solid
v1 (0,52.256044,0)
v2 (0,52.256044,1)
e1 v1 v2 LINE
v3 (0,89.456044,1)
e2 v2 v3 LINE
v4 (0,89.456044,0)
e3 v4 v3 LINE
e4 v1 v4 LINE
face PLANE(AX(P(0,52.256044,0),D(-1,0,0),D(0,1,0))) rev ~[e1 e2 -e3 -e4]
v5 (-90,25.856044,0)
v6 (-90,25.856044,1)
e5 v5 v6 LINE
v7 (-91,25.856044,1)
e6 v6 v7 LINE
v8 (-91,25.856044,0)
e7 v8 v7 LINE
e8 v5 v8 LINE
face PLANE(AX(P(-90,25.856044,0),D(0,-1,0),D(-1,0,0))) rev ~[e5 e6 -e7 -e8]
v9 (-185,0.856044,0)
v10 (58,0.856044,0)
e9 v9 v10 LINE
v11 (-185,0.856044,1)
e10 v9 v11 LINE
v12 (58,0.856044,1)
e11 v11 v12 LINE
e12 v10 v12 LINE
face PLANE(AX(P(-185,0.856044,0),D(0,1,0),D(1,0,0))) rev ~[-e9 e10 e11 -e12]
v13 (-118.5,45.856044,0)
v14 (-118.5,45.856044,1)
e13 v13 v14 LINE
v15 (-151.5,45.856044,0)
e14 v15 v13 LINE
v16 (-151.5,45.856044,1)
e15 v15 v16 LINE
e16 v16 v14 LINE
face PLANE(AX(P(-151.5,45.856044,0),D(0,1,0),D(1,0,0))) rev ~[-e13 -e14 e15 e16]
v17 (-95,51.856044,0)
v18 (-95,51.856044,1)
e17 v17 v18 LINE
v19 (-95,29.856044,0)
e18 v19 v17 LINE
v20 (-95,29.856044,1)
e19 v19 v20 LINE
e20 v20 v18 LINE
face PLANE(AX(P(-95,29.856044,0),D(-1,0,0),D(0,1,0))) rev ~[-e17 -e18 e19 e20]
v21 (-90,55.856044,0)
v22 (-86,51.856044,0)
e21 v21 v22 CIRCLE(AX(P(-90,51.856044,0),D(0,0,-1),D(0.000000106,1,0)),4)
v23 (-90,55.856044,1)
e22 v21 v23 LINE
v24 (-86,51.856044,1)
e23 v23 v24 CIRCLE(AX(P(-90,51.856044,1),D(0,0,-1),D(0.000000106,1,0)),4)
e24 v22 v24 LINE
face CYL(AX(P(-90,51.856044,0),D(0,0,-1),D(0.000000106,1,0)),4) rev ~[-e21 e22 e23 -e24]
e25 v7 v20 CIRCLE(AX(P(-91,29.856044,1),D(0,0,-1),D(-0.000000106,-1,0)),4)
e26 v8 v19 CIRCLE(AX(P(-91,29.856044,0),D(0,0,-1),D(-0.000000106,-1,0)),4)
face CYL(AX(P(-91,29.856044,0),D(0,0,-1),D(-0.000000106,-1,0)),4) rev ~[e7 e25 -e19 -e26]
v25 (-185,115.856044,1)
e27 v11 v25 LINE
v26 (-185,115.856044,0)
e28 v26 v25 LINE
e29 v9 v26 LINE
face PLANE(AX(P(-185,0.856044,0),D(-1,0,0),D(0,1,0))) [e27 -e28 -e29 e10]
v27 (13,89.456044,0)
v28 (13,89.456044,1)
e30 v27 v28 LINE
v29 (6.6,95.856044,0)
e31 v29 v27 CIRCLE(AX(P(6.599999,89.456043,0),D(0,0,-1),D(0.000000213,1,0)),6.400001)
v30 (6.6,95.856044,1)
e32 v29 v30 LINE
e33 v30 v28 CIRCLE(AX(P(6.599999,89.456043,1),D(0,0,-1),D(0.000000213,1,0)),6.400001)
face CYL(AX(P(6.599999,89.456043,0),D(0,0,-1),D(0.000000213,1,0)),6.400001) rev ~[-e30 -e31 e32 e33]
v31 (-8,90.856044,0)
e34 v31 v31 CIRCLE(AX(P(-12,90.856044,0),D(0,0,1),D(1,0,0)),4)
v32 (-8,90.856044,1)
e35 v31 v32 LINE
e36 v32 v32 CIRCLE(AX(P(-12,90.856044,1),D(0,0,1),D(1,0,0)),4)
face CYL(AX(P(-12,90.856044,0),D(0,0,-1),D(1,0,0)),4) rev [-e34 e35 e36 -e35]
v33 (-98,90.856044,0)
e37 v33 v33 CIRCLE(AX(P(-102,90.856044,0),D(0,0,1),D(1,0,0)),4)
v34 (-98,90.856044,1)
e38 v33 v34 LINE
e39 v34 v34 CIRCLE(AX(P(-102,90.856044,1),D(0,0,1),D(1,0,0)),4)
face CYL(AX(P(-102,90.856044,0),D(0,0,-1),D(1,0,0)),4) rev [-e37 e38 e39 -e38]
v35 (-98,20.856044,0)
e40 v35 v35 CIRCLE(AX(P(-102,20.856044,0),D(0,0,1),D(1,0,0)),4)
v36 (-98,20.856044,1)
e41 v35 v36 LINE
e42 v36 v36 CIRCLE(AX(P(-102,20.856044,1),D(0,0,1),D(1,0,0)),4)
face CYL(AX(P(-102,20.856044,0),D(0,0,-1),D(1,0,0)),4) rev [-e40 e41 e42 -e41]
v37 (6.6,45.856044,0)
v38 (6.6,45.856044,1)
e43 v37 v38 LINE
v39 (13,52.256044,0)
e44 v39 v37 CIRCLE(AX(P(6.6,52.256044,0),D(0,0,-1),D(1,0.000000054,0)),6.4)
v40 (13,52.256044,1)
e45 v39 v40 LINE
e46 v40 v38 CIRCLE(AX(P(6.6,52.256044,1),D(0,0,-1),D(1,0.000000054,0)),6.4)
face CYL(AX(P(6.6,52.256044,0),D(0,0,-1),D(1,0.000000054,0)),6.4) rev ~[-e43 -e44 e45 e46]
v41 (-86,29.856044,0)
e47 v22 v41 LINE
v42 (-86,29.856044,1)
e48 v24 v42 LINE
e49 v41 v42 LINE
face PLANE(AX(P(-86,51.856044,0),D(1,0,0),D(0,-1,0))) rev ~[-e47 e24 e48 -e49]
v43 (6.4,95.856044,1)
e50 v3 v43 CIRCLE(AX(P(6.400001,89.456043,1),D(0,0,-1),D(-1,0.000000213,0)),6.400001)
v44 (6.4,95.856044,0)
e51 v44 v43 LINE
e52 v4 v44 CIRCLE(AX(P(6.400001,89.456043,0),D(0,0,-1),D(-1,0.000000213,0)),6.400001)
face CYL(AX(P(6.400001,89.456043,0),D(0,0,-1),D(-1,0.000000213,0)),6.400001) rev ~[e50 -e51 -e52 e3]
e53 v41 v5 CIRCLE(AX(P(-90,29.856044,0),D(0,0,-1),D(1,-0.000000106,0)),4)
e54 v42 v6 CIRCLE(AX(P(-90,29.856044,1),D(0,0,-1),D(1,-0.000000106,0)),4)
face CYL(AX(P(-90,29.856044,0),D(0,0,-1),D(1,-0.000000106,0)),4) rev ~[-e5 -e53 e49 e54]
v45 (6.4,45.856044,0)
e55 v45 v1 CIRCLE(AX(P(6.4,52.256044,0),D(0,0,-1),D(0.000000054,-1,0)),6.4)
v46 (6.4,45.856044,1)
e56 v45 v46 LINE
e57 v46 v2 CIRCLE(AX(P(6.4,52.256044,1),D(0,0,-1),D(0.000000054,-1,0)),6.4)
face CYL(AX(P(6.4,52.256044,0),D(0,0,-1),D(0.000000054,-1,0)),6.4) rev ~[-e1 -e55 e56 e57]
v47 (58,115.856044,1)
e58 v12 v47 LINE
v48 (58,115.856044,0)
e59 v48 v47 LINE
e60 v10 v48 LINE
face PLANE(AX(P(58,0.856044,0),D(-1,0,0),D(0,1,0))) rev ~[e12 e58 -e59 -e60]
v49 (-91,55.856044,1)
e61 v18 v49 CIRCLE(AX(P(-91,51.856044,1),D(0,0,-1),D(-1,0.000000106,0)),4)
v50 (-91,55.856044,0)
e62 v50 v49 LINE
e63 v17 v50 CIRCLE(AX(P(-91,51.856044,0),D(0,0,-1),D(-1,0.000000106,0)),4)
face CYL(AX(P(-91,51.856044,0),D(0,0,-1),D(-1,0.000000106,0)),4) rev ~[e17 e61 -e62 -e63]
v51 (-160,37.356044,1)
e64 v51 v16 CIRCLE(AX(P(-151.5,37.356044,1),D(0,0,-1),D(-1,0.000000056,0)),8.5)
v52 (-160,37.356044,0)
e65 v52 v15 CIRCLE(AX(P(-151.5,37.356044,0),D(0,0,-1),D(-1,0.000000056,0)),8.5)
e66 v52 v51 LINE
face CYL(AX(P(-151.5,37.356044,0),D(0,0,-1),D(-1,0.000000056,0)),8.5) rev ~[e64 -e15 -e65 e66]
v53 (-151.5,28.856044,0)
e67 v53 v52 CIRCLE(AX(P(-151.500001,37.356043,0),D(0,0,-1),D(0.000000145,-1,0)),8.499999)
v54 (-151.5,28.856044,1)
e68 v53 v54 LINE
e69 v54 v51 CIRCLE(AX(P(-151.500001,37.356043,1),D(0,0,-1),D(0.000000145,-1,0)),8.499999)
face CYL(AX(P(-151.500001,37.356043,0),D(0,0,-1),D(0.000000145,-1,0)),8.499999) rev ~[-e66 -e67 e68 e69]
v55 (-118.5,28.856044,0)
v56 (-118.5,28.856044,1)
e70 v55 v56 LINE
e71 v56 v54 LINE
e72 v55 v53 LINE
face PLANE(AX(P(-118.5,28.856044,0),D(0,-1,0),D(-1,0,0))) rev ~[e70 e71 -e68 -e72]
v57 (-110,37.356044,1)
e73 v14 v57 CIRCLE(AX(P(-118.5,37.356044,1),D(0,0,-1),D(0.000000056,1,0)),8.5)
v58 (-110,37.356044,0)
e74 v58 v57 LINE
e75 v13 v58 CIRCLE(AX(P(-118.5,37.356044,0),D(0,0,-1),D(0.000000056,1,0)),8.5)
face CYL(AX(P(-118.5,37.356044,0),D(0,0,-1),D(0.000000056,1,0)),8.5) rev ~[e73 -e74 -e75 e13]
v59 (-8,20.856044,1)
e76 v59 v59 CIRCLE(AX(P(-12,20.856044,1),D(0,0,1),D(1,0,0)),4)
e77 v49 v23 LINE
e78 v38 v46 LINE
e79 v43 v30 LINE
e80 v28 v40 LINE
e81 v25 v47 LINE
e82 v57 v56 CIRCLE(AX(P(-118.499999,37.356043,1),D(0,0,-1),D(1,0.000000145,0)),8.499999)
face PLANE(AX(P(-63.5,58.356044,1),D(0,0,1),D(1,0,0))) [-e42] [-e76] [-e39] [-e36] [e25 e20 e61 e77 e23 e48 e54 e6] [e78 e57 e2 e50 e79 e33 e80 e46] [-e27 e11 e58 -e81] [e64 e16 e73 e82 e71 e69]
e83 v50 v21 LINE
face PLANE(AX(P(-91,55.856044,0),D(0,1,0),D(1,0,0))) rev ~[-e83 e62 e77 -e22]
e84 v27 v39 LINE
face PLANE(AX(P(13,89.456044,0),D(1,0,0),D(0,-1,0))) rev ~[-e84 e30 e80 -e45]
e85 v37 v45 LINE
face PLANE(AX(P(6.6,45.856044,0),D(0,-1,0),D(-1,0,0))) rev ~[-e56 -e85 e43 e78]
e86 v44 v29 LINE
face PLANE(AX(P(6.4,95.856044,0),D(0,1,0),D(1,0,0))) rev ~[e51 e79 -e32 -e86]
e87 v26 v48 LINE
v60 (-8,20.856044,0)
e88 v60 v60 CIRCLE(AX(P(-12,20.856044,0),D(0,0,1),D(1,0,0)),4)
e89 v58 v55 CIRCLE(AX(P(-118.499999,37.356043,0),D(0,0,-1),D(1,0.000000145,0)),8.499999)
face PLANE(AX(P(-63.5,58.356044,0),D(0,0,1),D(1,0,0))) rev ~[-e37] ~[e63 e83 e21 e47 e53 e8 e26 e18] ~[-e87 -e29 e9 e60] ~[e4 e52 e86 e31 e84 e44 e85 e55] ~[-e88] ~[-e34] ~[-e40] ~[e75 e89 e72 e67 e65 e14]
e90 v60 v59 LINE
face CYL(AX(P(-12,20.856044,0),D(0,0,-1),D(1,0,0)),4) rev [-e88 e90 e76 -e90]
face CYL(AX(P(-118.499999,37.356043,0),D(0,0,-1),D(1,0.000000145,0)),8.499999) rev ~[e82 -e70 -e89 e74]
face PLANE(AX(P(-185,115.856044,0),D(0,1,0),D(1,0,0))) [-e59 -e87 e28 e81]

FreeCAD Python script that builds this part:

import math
import FreeCAD as App
import Part
import Sketcher


def add_polygon(sketch, points):
    """Adds a closed chain of lines whose ends are joined by coincident constraints."""
    first, n = sketch.GeometryCount, len(points)
    for a, b in zip(points, points[1:] + points[:1]):
        sketch.addGeometry(Part.LineSegment(App.Vector(*a, 0), App.Vector(*b, 0)), False)
    for i in range(n):
        sketch.addConstraint(Sketcher.Constraint("Coincident", first + i, 2, first + (i + 1) % n, 1))

doc = App.newDocument("Part")
body = doc.addObject("PartDesign::Body", "Body")

# Sketch on XY plane
sketch1 = body.newObject("Sketcher::SketchObject", "Sketch")
sketch1.AttachmentSupport = (doc.getObject("XY_Plane"), [""])
sketch1.MapMode = "FlatFace"
add_polygon(sketch1, [(-185, 115.86), (-185, 0.86), (58, 0.86), (58, 115.86)])  # lines 0-3
sketch1.addGeometry(Part.Circle(App.Vector(-102, 20.86, 0), App.Vector(0, 0, 1), 4), False)  # 4
sketch1.addGeometry(Part.ArcOfCircle(Part.Circle(App.Vector(-151.5, 37.36, 0), App.Vector(0, 0, 1), 8.5), math.radians(180), math.radians(270)), False)  # 5
sketch1.addGeometry(Part.ArcOfCircle(Part.Circle(App.Vector(-151.5, 37.36, 0), App.Vector(0, 0, 1), 8.5), math.radians(90), math.radians(180)), False)  # 6
sketch1.addGeometry(Part.LineSegment(App.Vector(-151.5, 45.86, 0), App.Vector(-118.5, 45.86, 0)), False)  # 7
sketch1.addGeometry(Part.ArcOfCircle(Part.Circle(App.Vector(-118.5, 37.36, 0), App.Vector(0, 0, 1), 8.5), math.radians(0), math.radians(90)), False)  # 8
sketch1.addGeometry(Part.ArcOfCircle(Part.Circle(App.Vector(-118.5, 37.36, 0), App.Vector(0, 0, 1), 8.5), math.radians(-90), math.radians(0)), False)  # 9
sketch1.addGeometry(Part.LineSegment(App.Vector(-118.5, 28.86, 0), App.Vector(-151.5, 28.86, 0)), False)  # 10
sketch1.addGeometry(Part.LineSegment(App.Vector(-95, 29.86, 0), App.Vector(-95, 51.86, 0)), False)  # 11
sketch1.addGeometry(Part.ArcOfCircle(Part.Circle(App.Vector(-91, 51.86, 0), App.Vector(0, 0, 1), 4), math.radians(90), math.radians(180)), False)  # 12
sketch1.addGeometry(Part.LineSegment(App.Vector(-91, 55.86, 0), App.Vector(-90, 55.86, 0)), False)  # 13
sketch1.addGeometry(Part.ArcOfCircle(Part.Circle(App.Vector(-90, 51.86, 0), App.Vector(0, 0, 1), 4), math.radians(0), math.radians(90)), False)  # 14
sketch1.addGeometry(Part.LineSegment(App.Vector(-86, 51.86, 0), App.Vector(-86, 29.86, 0)), False)  # 15
sketch1.addGeometry(Part.ArcOfCircle(Part.Circle(App.Vector(-90, 29.86, 0), App.Vector(0, 0, 1), 4), math.radians(-90), math.radians(0)), False)  # 16
sketch1.addGeometry(Part.LineSegment(App.Vector(-90, 25.86, 0), App.Vector(-91, 25.86, 0)), False)  # 17
sketch1.addGeometry(Part.ArcOfCircle(Part.Circle(App.Vector(-91, 29.86, 0), App.Vector(0, 0, 1), 4), math.radians(-180), math.radians(-90)), False)  # 18
sketch1.addGeometry(Part.Circle(App.Vector(-12, 20.86, 0), App.Vector(0, 0, 1), 4), False)  # 19
sketch1.addGeometry(Part.Circle(App.Vector(-102, 90.86, 0), App.Vector(0, 0, 1), 4), False)  # 20
sketch1.addGeometry(Part.ArcOfCircle(Part.Circle(App.Vector(6.4, 89.46, 0), App.Vector(0, 0, 1), 6.4), math.radians(90), math.radians(180)), False)  # 21
sketch1.addGeometry(Part.LineSegment(App.Vector(6.4, 95.86, 0), App.Vector(6.6, 95.86, 0)), False)  # 22
sketch1.addGeometry(Part.ArcOfCircle(Part.Circle(App.Vector(6.6, 89.46, 0), App.Vector(0, 0, 1), 6.4), math.radians(0), math.radians(90)), False)  # 23
sketch1.addGeometry(Part.LineSegment(App.Vector(13, 89.46, 0), App.Vector(13, 52.26, 0)), False)  # 24
sketch1.addGeometry(Part.ArcOfCircle(Part.Circle(App.Vector(6.6, 52.26, 0), App.Vector(0, 0, 1), 6.4), math.radians(-90), math.radians(0)), False)  # 25
sketch1.addGeometry(Part.LineSegment(App.Vector(6.6, 45.86, 0), App.Vector(6.4, 45.86, 0)), False)  # 26
sketch1.addGeometry(Part.ArcOfCircle(Part.Circle(App.Vector(6.4, 52.26, 0), App.Vector(0, 0, 1), 6.4), math.radians(180), math.radians(270)), False)  # 27
sketch1.addGeometry(Part.LineSegment(App.Vector(0, 52.26, 0), App.Vector(0, 89.46, 0)), False)  # 28
sketch1.addGeometry(Part.Circle(App.Vector(-12, 90.86, 0), App.Vector(0, 0, 1), 4), False)  # 29
sketch1.addConstraint([
    Sketcher.Constraint("Tangent", 5, 1, 6, 2),
    Sketcher.Constraint("Tangent", 6, 1, 7, 1),
    Sketcher.Constraint("Tangent", 7, 2, 8, 2),
    Sketcher.Constraint("Tangent", 8, 1, 9, 2),
    Sketcher.Constraint("Tangent", 9, 1, 10, 1),
    Sketcher.Constraint("Tangent", 10, 2, 5, 2),
    Sketcher.Constraint("Tangent", 11, 2, 12, 2),
    Sketcher.Constraint("Tangent", 12, 1, 13, 1),
    Sketcher.Constraint("Tangent", 13, 2, 14, 2),
    Sketcher.Constraint("Tangent", 14, 1, 15, 1),
    Sketcher.Constraint("Tangent", 15, 2, 16, 2),
    Sketcher.Constraint("Tangent", 16, 1, 17, 1),
    Sketcher.Constraint("Tangent", 17, 2, 18, 2),
    Sketcher.Constraint("Tangent", 18, 1, 11, 1),
    Sketcher.Constraint("Tangent", 21, 1, 22, 1),
    Sketcher.Constraint("Tangent", 22, 2, 23, 2),
    Sketcher.Constraint("Tangent", 23, 1, 24, 1),
    Sketcher.Constraint("Tangent", 24, 2, 25, 2),
    Sketcher.Constraint("Tangent", 25, 1, 26, 1),
    Sketcher.Constraint("Tangent", 26, 2, 27, 2),
    Sketcher.Constraint("Tangent", 27, 1, 28, 1),
    Sketcher.Constraint("Tangent", 28, 2, 21, 2),
    Sketcher.Constraint("Vertical", 0),
    Sketcher.Constraint("Horizontal", 1),
    Sketcher.Constraint("Vertical", 2),
    Sketcher.Constraint("Horizontal", 3),
    Sketcher.Constraint("Horizontal", 7),
    Sketcher.Constraint("Horizontal", 10),
    Sketcher.Constraint("Vertical", 11),
    Sketcher.Constraint("Horizontal", 13),
    Sketcher.Constraint("Vertical", 15),
    Sketcher.Constraint("Horizontal", 17),
    Sketcher.Constraint("Horizontal", 22),
    Sketcher.Constraint("Vertical", 24),
    Sketcher.Constraint("Horizontal", 26),
    Sketcher.Constraint("Vertical", 28),
    Sketcher.Constraint("Equal", 5, 6),
    Sketcher.Constraint("Equal", 6, 8),
    Sketcher.Constraint("Equal", 4, 12),
    Sketcher.Constraint("Equal", 12, 14),
    Sketcher.Constraint("Equal", 14, 16),
    Sketcher.Constraint("Equal", 16, 18),
    Sketcher.Constraint("Equal", 18, 19),
    Sketcher.Constraint("Equal", 19, 20),
    Sketcher.Constraint("Equal", 21, 23),
    Sketcher.Constraint("Equal", 23, 25),
    Sketcher.Constraint("Equal", 25, 27),
    Sketcher.Constraint("Equal", 20, 29),
    Sketcher.Constraint("PointOnObject", 27, 1, -2),
    Sketcher.Constraint("Horizontal", 4, 3, 19, 3),
    Sketcher.Constraint("Horizontal", 20, 3, 29, 3),
    Sketcher.Constraint("Horizontal", 9, 3, 5, 1),
    Sketcher.Constraint("Horizontal", 5, 1, 8, 1),
    Sketcher.Constraint("Horizontal", 7, 2, 25, 1),
    Sketcher.Constraint("Vertical", 4, 3, 20, 3),
    Sketcher.Constraint("Vertical", 19, 3, 29, 3),
    Sketcher.Constraint("Diameter", 4, 8.0),
    Sketcher.Constraint("Radius", 5, 8.499999),
    Sketcher.Constraint("Radius", 21, 6.400001),
    Sketcher.Constraint("DistanceX", 1, 1, 1, 2, 243.0),
    Sketcher.Constraint("DistanceX", 7, 1, 7, 2, 33.0),
    Sketcher.Constraint("DistanceX", 13, 1, 13, 2, 1.0),
    Sketcher.Constraint("DistanceY", 0, 2, 0, 1, 115.0),
    Sketcher.Constraint("DistanceY", 11, 1, 11, 2, 22.0),
    Sketcher.Constraint("DistanceX", 22, 1, 22, 2, 0.2),
    Sketcher.Constraint("DistanceY", 24, 2, 24, 1, 37.2),
    Sketcher.Constraint("DistanceX", 4, 3, -1, 1, 102.0),
    Sketcher.Constraint("DistanceX", 12, 3, -1, 1, 91.0),
    Sketcher.Constraint("DistanceX", 19, 3, -1, 1, 12.0),
    Sketcher.Constraint("DistanceX", 0, 2, -1, 1, 185.0),
    Sketcher.Constraint("DistanceX", 5, 1, -1, 1, 160.0),
    Sketcher.Constraint("DistanceY", 4, 3, 12, 3, 31.0),
    Sketcher.Constraint("DistanceY", 12, 3, 20, 3, 39.0),
    Sketcher.Constraint("DistanceY", 0, 2, 4, 3, 20.0),
    Sketcher.Constraint("DistanceY", 7, 2, 12, 3, 6.0),
    Sketcher.Constraint("DistanceY", -1, 1, 4, 3, 20.856044),
])
pad1 = body.newObject("PartDesign::Pad", "Pad")
pad1.Profile = sketch1
pad1.Length = 1

doc.recompute()
